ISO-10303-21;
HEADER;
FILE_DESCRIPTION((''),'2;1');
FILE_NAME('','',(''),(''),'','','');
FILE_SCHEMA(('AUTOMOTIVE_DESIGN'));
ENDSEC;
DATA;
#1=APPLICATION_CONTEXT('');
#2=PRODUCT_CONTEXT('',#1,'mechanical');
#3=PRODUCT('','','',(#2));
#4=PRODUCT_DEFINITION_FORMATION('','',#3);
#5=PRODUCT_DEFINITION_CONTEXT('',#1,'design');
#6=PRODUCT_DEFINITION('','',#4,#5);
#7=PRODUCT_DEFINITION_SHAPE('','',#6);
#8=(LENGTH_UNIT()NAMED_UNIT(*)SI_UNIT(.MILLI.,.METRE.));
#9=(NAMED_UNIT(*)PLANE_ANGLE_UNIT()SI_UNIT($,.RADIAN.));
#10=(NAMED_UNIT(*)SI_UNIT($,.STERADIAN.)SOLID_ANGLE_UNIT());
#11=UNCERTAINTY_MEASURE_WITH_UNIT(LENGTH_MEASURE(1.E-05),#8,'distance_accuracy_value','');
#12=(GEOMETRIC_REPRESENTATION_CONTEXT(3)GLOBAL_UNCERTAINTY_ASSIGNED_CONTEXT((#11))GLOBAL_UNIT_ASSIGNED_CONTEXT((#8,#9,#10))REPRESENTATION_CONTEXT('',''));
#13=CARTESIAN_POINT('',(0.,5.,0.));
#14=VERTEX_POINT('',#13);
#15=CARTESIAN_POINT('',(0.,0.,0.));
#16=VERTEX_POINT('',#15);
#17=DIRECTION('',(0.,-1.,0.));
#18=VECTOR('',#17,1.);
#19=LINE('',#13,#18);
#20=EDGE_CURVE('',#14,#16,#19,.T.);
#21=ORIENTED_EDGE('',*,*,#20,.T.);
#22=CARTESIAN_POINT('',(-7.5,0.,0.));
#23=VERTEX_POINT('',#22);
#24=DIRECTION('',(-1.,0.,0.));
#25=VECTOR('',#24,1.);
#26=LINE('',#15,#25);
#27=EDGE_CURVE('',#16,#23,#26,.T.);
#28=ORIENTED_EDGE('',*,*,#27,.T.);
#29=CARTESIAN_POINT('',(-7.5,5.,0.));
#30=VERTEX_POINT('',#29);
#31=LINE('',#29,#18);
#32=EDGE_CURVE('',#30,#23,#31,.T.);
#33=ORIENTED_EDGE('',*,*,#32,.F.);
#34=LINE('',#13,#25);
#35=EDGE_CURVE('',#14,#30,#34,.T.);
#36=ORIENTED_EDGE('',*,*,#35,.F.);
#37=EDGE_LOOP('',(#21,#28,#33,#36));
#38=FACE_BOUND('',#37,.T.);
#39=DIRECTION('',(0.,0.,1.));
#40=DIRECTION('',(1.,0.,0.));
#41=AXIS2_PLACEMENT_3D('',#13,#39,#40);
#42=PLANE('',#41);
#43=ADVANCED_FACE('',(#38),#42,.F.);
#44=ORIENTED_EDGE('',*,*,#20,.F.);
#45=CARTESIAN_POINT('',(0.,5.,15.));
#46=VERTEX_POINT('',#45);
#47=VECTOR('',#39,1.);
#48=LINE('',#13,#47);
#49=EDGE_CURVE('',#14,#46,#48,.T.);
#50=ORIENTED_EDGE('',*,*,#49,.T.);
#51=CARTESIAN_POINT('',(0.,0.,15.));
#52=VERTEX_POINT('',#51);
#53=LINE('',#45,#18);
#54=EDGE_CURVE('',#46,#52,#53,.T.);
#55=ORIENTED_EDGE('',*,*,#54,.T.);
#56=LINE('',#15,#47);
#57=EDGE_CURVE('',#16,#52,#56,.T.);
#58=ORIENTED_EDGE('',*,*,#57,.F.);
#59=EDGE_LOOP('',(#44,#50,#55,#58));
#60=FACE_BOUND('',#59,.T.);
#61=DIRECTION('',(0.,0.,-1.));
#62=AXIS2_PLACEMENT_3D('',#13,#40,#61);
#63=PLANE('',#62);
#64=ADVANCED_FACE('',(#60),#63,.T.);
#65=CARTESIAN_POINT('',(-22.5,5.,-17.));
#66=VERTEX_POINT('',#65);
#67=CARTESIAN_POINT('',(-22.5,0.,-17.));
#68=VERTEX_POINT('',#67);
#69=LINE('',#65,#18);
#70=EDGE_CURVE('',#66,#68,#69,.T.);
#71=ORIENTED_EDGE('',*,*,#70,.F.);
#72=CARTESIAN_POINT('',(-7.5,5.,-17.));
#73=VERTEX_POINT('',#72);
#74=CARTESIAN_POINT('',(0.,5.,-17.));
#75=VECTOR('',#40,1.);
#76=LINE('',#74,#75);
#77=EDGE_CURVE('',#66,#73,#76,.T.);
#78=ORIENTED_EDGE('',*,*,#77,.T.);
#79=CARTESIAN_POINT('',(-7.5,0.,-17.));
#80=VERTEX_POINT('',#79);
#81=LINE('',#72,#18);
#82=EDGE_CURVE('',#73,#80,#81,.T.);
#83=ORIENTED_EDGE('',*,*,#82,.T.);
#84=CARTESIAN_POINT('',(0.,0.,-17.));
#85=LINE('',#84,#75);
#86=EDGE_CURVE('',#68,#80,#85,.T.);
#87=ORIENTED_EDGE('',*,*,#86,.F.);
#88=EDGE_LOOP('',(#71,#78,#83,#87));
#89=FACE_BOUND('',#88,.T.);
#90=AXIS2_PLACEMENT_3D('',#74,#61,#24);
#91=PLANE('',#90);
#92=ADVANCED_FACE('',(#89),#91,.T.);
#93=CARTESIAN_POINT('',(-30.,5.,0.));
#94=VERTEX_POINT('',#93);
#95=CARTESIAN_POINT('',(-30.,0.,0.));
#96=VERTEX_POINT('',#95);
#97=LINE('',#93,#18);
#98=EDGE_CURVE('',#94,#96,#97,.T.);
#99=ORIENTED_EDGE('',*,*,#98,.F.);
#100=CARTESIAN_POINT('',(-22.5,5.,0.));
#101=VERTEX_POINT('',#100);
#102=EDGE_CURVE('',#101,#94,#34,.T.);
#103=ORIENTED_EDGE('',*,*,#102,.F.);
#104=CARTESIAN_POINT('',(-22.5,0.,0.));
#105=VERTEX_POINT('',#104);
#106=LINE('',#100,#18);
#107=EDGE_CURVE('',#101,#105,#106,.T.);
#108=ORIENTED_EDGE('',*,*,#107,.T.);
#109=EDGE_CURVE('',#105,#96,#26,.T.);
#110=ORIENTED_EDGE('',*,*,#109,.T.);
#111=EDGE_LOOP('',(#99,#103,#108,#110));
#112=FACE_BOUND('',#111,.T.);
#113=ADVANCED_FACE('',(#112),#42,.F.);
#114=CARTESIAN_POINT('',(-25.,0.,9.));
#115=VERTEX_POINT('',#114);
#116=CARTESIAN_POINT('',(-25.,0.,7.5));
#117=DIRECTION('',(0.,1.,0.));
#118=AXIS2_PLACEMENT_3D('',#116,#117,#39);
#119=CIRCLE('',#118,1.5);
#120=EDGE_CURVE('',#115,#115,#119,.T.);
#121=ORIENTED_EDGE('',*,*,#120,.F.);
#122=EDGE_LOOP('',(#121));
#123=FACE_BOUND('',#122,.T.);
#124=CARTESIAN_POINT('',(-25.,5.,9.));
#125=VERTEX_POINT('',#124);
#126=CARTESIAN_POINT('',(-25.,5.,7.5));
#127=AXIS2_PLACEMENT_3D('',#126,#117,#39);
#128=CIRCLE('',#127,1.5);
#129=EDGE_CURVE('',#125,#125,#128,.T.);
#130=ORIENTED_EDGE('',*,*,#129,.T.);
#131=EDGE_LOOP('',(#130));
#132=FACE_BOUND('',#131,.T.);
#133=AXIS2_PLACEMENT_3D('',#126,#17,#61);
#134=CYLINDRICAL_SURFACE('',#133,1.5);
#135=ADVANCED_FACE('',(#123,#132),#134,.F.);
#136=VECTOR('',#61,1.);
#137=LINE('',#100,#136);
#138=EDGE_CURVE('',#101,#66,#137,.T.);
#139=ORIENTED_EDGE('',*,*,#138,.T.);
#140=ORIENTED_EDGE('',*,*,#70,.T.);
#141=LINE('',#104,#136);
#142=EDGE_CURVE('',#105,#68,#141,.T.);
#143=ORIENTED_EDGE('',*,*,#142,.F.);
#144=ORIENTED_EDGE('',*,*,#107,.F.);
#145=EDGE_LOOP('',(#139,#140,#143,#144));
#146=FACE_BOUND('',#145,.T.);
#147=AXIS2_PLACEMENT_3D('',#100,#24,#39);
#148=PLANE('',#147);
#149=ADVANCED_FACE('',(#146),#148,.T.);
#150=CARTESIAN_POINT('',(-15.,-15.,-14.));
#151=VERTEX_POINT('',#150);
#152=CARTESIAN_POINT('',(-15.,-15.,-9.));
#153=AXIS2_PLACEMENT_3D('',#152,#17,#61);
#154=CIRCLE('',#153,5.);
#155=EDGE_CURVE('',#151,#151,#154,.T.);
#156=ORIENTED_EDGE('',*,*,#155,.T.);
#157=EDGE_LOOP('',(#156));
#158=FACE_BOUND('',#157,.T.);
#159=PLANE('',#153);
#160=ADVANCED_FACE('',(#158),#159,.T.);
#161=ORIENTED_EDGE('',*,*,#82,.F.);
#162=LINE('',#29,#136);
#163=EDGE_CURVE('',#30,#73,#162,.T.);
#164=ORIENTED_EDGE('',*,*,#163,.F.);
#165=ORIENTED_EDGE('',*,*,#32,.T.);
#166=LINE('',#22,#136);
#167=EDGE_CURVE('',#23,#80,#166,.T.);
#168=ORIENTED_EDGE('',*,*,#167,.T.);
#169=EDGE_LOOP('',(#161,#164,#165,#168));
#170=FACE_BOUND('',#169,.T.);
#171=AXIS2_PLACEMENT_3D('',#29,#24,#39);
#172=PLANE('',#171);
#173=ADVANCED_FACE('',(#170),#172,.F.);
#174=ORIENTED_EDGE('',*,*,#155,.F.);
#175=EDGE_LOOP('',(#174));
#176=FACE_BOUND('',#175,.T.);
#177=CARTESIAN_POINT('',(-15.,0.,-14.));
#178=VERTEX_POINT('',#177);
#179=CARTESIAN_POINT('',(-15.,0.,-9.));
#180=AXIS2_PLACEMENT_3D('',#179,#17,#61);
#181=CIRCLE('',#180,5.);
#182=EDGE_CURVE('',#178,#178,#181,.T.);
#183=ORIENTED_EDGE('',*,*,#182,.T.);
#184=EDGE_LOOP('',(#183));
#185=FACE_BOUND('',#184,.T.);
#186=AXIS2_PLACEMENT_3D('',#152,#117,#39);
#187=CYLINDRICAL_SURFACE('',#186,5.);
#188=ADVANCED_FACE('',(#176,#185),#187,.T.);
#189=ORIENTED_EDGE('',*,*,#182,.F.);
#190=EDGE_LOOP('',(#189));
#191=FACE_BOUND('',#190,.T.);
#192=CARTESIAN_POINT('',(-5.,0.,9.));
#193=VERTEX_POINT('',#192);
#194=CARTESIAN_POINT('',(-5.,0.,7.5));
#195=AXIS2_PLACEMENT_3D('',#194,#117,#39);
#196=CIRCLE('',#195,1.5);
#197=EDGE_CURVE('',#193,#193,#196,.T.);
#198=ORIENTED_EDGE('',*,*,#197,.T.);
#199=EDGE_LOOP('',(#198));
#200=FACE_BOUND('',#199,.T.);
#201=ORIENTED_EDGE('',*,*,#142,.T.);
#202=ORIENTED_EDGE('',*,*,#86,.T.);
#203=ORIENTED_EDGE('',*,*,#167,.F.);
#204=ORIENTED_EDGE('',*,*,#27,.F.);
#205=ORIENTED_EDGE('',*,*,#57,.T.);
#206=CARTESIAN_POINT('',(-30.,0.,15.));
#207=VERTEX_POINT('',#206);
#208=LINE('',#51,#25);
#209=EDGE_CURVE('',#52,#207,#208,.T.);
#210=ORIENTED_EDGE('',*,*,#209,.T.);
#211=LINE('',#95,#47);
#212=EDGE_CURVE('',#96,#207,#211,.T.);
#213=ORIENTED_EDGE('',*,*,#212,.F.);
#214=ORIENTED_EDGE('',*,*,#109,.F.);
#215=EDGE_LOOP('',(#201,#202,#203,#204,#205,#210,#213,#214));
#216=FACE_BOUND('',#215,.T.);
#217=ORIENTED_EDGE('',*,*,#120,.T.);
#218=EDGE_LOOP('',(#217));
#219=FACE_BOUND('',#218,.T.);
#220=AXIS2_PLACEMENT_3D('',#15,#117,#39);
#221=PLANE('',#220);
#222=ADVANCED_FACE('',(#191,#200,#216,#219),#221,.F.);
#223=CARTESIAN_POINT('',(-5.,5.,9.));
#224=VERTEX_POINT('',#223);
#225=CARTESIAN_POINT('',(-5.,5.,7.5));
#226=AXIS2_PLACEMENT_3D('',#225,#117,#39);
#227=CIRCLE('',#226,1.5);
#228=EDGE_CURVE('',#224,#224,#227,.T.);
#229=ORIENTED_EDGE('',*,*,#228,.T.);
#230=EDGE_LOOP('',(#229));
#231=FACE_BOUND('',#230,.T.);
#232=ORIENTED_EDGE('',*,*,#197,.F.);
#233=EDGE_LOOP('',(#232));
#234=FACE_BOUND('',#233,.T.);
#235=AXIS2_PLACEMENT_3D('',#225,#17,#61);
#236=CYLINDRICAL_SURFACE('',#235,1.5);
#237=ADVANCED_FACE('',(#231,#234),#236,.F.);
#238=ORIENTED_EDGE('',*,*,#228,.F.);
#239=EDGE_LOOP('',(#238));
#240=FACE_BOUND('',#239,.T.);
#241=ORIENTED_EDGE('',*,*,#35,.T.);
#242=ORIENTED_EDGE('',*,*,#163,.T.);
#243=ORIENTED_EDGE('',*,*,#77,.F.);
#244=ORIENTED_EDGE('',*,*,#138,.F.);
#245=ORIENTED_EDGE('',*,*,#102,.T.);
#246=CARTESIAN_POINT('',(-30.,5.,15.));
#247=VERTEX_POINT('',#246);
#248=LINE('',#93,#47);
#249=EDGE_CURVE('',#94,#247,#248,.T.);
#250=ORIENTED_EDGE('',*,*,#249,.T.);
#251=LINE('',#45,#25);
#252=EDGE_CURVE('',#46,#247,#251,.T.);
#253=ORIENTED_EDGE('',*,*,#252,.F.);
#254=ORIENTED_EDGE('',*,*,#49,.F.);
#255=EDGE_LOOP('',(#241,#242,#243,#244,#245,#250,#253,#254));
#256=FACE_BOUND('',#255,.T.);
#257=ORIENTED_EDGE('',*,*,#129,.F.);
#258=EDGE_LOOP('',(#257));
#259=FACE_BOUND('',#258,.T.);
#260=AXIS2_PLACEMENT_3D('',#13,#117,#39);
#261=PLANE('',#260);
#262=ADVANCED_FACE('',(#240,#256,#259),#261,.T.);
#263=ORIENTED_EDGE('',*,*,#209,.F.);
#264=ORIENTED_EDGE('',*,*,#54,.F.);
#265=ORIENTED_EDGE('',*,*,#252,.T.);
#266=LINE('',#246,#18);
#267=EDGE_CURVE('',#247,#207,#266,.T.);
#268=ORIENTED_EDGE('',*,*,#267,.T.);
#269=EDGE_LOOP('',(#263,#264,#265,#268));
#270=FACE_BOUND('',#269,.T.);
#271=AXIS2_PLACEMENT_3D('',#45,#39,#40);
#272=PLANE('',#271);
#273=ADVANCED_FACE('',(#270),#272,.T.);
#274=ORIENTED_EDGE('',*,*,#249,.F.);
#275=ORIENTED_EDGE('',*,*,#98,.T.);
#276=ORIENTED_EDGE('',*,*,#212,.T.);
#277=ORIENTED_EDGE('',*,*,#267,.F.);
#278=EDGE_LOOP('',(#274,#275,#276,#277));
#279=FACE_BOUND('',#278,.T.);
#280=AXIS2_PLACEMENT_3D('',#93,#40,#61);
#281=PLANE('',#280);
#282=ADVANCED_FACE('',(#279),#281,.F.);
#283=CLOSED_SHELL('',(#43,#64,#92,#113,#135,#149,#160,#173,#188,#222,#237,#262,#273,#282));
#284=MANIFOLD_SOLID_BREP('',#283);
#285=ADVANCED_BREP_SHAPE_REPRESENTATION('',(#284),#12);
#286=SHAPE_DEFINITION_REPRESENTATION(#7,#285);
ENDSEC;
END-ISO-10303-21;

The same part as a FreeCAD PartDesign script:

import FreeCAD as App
import Part
import Sketcher
from FreeCAD import Vector

doc = App.newDocument("Part")
body = doc.addObject("PartDesign::Body", "Body")

sketch1 = body.newObject("Sketcher::SketchObject", "Sketch")
sketch1.AttachmentSupport = (doc.getObject("XZ_Plane"), [""])
sketch1.MapMode = "FlatFace"
sketch1.addGeometry(Part.LineSegment(Vector(-30, 0, 0), Vector(-30, 15, 0)), False)
sketch1.addGeometry(Part.LineSegment(Vector(-30, 15, 0), Vector(0, 15, 0)), False)
sketch1.addGeometry(Part.LineSegment(Vector(0, 15, 0), Vector(0, 0, 0)), False)
sketch1.addGeometry(Part.LineSegment(Vector(0, 0, 0), Vector(-7.5, 0, 0)), False)
sketch1.addGeometry(Part.LineSegment(Vector(-7.5, 0, 0), Vector(-7.5, -17, 0)), False)
sketch1.addGeometry(Part.LineSegment(Vector(-7.5, -17, 0), Vector(-22.5, -17, 0)), False)
sketch1.addGeometry(Part.LineSegment(Vector(-22.5, -17, 0), Vector(-22.5, 0, 0)), False)
sketch1.addGeometry(Part.LineSegment(Vector(-22.5, 0, 0), Vector(-30, 0, 0)), False)
sketch1.addGeometry(Part.Circle(Vector(-25, 7.5, 0), Vector(0, 0, 1), 1.5), False)
sketch1.addGeometry(Part.Circle(Vector(-5, 7.5, 0), Vector(0, 0, 1), 1.5), False)
sketch1.addConstraint(Sketcher.Constraint("Coincident", 0, 2, 1, 1))
sketch1.addConstraint(Sketcher.Constraint("Coincident", 1, 2, 2, 1))
sketch1.addConstraint(Sketcher.Constraint("Coincident", 2, 2, 3, 1))
sketch1.addConstraint(Sketcher.Constraint("Coincident", 3, 2, 4, 1))
sketch1.addConstraint(Sketcher.Constraint("Coincident", 4, 2, 5, 1))
sketch1.addConstraint(Sketcher.Constraint("Coincident", 5, 2, 6, 1))
sketch1.addConstraint(Sketcher.Constraint("Coincident", 6, 2, 7, 1))
sketch1.addConstraint(Sketcher.Constraint("Coincident", 7, 2, 0, 1))
sketch1.addConstraint(Sketcher.Constraint("Vertical", 0))
sketch1.addConstraint(Sketcher.Constraint("Horizontal", 1))
sketch1.addConstraint(Sketcher.Constraint("Vertical", 2))
sketch1.addConstraint(Sketcher.Constraint("Horizontal", 3))
sketch1.addConstraint(Sketcher.Constraint("Vertical", 4))
sketch1.addConstraint(Sketcher.Constraint("Horizontal", 5))
sketch1.addConstraint(Sketcher.Constraint("Vertical", 6))
sketch1.addConstraint(Sketcher.Constraint("Horizontal", 7))
sketch1.addConstraint(Sketcher.Constraint("Coincident", 2, 2, -1, 1))
sketch1.addConstraint(Sketcher.Constraint("Equal", 8, 9))
sketch1.addConstraint(Sketcher.Constraint("PointOnObject", 6, 2, -1))
sketch1.addConstraint(Sketcher.Constraint("Horizontal", 8, 3, 9, 3))
sketch1.addConstraint(Sketcher.Constraint("Equal", 3, 7))
sketch1.addConstraint(Sketcher.Constraint("Equal", 5, 0))
sketch1.addConstraint(Sketcher.Constraint("Diameter", 8, 3.0))
sketch1.addConstraint(Sketcher.Constraint("DistanceX", 1, 1, 1, 2, 30.0))
sketch1.addConstraint(Sketcher.Constraint("DistanceX", 5, 2, 5, 1, 15.0))
sketch1.addConstraint(Sketcher.Constraint("DistanceY", 4, 2, 4, 1, 17.0))
sketch1.addConstraint(Sketcher.Constraint("DistanceX", 8, 3, -1, 1, 25.0))
sketch1.addConstraint(Sketcher.Constraint("DistanceX", 9, 3, -1, 1, 5.0))
sketch1.addConstraint(Sketcher.Constraint("DistanceY", -1, 1, 8, 3, 7.5))
pad1 = body.newObject("PartDesign::Pad", "Pad")
pad1.Profile = sketch1
pad1.Length = 5
pad1.Reversed = True

sketch2 = body.newObject("Sketcher::SketchObject", "Sketch001")
sketch2.AttachmentSupport = (doc.getObject("XZ_Plane"), [""])
sketch2.MapMode = "FlatFace"
sketch2.addGeometry(Part.Circle(Vector(-15, -9, 0), Vector(0, 0, 1), 5), False)
sketch2.addConstraint(Sketcher.Constraint("Diameter", 0, 10.0))
sketch2.addConstraint(Sketcher.Constraint("DistanceX", 0, 3, -1, 1, 15.0))
sketch2.addConstraint(Sketcher.Constraint("DistanceY", 0, 3, -1, 1, 9.0))
pad2 = body.newObject("PartDesign::Pad", "Pad001")
pad2.Profile = sketch2
pad2.Length = 15

doc.recompute()
